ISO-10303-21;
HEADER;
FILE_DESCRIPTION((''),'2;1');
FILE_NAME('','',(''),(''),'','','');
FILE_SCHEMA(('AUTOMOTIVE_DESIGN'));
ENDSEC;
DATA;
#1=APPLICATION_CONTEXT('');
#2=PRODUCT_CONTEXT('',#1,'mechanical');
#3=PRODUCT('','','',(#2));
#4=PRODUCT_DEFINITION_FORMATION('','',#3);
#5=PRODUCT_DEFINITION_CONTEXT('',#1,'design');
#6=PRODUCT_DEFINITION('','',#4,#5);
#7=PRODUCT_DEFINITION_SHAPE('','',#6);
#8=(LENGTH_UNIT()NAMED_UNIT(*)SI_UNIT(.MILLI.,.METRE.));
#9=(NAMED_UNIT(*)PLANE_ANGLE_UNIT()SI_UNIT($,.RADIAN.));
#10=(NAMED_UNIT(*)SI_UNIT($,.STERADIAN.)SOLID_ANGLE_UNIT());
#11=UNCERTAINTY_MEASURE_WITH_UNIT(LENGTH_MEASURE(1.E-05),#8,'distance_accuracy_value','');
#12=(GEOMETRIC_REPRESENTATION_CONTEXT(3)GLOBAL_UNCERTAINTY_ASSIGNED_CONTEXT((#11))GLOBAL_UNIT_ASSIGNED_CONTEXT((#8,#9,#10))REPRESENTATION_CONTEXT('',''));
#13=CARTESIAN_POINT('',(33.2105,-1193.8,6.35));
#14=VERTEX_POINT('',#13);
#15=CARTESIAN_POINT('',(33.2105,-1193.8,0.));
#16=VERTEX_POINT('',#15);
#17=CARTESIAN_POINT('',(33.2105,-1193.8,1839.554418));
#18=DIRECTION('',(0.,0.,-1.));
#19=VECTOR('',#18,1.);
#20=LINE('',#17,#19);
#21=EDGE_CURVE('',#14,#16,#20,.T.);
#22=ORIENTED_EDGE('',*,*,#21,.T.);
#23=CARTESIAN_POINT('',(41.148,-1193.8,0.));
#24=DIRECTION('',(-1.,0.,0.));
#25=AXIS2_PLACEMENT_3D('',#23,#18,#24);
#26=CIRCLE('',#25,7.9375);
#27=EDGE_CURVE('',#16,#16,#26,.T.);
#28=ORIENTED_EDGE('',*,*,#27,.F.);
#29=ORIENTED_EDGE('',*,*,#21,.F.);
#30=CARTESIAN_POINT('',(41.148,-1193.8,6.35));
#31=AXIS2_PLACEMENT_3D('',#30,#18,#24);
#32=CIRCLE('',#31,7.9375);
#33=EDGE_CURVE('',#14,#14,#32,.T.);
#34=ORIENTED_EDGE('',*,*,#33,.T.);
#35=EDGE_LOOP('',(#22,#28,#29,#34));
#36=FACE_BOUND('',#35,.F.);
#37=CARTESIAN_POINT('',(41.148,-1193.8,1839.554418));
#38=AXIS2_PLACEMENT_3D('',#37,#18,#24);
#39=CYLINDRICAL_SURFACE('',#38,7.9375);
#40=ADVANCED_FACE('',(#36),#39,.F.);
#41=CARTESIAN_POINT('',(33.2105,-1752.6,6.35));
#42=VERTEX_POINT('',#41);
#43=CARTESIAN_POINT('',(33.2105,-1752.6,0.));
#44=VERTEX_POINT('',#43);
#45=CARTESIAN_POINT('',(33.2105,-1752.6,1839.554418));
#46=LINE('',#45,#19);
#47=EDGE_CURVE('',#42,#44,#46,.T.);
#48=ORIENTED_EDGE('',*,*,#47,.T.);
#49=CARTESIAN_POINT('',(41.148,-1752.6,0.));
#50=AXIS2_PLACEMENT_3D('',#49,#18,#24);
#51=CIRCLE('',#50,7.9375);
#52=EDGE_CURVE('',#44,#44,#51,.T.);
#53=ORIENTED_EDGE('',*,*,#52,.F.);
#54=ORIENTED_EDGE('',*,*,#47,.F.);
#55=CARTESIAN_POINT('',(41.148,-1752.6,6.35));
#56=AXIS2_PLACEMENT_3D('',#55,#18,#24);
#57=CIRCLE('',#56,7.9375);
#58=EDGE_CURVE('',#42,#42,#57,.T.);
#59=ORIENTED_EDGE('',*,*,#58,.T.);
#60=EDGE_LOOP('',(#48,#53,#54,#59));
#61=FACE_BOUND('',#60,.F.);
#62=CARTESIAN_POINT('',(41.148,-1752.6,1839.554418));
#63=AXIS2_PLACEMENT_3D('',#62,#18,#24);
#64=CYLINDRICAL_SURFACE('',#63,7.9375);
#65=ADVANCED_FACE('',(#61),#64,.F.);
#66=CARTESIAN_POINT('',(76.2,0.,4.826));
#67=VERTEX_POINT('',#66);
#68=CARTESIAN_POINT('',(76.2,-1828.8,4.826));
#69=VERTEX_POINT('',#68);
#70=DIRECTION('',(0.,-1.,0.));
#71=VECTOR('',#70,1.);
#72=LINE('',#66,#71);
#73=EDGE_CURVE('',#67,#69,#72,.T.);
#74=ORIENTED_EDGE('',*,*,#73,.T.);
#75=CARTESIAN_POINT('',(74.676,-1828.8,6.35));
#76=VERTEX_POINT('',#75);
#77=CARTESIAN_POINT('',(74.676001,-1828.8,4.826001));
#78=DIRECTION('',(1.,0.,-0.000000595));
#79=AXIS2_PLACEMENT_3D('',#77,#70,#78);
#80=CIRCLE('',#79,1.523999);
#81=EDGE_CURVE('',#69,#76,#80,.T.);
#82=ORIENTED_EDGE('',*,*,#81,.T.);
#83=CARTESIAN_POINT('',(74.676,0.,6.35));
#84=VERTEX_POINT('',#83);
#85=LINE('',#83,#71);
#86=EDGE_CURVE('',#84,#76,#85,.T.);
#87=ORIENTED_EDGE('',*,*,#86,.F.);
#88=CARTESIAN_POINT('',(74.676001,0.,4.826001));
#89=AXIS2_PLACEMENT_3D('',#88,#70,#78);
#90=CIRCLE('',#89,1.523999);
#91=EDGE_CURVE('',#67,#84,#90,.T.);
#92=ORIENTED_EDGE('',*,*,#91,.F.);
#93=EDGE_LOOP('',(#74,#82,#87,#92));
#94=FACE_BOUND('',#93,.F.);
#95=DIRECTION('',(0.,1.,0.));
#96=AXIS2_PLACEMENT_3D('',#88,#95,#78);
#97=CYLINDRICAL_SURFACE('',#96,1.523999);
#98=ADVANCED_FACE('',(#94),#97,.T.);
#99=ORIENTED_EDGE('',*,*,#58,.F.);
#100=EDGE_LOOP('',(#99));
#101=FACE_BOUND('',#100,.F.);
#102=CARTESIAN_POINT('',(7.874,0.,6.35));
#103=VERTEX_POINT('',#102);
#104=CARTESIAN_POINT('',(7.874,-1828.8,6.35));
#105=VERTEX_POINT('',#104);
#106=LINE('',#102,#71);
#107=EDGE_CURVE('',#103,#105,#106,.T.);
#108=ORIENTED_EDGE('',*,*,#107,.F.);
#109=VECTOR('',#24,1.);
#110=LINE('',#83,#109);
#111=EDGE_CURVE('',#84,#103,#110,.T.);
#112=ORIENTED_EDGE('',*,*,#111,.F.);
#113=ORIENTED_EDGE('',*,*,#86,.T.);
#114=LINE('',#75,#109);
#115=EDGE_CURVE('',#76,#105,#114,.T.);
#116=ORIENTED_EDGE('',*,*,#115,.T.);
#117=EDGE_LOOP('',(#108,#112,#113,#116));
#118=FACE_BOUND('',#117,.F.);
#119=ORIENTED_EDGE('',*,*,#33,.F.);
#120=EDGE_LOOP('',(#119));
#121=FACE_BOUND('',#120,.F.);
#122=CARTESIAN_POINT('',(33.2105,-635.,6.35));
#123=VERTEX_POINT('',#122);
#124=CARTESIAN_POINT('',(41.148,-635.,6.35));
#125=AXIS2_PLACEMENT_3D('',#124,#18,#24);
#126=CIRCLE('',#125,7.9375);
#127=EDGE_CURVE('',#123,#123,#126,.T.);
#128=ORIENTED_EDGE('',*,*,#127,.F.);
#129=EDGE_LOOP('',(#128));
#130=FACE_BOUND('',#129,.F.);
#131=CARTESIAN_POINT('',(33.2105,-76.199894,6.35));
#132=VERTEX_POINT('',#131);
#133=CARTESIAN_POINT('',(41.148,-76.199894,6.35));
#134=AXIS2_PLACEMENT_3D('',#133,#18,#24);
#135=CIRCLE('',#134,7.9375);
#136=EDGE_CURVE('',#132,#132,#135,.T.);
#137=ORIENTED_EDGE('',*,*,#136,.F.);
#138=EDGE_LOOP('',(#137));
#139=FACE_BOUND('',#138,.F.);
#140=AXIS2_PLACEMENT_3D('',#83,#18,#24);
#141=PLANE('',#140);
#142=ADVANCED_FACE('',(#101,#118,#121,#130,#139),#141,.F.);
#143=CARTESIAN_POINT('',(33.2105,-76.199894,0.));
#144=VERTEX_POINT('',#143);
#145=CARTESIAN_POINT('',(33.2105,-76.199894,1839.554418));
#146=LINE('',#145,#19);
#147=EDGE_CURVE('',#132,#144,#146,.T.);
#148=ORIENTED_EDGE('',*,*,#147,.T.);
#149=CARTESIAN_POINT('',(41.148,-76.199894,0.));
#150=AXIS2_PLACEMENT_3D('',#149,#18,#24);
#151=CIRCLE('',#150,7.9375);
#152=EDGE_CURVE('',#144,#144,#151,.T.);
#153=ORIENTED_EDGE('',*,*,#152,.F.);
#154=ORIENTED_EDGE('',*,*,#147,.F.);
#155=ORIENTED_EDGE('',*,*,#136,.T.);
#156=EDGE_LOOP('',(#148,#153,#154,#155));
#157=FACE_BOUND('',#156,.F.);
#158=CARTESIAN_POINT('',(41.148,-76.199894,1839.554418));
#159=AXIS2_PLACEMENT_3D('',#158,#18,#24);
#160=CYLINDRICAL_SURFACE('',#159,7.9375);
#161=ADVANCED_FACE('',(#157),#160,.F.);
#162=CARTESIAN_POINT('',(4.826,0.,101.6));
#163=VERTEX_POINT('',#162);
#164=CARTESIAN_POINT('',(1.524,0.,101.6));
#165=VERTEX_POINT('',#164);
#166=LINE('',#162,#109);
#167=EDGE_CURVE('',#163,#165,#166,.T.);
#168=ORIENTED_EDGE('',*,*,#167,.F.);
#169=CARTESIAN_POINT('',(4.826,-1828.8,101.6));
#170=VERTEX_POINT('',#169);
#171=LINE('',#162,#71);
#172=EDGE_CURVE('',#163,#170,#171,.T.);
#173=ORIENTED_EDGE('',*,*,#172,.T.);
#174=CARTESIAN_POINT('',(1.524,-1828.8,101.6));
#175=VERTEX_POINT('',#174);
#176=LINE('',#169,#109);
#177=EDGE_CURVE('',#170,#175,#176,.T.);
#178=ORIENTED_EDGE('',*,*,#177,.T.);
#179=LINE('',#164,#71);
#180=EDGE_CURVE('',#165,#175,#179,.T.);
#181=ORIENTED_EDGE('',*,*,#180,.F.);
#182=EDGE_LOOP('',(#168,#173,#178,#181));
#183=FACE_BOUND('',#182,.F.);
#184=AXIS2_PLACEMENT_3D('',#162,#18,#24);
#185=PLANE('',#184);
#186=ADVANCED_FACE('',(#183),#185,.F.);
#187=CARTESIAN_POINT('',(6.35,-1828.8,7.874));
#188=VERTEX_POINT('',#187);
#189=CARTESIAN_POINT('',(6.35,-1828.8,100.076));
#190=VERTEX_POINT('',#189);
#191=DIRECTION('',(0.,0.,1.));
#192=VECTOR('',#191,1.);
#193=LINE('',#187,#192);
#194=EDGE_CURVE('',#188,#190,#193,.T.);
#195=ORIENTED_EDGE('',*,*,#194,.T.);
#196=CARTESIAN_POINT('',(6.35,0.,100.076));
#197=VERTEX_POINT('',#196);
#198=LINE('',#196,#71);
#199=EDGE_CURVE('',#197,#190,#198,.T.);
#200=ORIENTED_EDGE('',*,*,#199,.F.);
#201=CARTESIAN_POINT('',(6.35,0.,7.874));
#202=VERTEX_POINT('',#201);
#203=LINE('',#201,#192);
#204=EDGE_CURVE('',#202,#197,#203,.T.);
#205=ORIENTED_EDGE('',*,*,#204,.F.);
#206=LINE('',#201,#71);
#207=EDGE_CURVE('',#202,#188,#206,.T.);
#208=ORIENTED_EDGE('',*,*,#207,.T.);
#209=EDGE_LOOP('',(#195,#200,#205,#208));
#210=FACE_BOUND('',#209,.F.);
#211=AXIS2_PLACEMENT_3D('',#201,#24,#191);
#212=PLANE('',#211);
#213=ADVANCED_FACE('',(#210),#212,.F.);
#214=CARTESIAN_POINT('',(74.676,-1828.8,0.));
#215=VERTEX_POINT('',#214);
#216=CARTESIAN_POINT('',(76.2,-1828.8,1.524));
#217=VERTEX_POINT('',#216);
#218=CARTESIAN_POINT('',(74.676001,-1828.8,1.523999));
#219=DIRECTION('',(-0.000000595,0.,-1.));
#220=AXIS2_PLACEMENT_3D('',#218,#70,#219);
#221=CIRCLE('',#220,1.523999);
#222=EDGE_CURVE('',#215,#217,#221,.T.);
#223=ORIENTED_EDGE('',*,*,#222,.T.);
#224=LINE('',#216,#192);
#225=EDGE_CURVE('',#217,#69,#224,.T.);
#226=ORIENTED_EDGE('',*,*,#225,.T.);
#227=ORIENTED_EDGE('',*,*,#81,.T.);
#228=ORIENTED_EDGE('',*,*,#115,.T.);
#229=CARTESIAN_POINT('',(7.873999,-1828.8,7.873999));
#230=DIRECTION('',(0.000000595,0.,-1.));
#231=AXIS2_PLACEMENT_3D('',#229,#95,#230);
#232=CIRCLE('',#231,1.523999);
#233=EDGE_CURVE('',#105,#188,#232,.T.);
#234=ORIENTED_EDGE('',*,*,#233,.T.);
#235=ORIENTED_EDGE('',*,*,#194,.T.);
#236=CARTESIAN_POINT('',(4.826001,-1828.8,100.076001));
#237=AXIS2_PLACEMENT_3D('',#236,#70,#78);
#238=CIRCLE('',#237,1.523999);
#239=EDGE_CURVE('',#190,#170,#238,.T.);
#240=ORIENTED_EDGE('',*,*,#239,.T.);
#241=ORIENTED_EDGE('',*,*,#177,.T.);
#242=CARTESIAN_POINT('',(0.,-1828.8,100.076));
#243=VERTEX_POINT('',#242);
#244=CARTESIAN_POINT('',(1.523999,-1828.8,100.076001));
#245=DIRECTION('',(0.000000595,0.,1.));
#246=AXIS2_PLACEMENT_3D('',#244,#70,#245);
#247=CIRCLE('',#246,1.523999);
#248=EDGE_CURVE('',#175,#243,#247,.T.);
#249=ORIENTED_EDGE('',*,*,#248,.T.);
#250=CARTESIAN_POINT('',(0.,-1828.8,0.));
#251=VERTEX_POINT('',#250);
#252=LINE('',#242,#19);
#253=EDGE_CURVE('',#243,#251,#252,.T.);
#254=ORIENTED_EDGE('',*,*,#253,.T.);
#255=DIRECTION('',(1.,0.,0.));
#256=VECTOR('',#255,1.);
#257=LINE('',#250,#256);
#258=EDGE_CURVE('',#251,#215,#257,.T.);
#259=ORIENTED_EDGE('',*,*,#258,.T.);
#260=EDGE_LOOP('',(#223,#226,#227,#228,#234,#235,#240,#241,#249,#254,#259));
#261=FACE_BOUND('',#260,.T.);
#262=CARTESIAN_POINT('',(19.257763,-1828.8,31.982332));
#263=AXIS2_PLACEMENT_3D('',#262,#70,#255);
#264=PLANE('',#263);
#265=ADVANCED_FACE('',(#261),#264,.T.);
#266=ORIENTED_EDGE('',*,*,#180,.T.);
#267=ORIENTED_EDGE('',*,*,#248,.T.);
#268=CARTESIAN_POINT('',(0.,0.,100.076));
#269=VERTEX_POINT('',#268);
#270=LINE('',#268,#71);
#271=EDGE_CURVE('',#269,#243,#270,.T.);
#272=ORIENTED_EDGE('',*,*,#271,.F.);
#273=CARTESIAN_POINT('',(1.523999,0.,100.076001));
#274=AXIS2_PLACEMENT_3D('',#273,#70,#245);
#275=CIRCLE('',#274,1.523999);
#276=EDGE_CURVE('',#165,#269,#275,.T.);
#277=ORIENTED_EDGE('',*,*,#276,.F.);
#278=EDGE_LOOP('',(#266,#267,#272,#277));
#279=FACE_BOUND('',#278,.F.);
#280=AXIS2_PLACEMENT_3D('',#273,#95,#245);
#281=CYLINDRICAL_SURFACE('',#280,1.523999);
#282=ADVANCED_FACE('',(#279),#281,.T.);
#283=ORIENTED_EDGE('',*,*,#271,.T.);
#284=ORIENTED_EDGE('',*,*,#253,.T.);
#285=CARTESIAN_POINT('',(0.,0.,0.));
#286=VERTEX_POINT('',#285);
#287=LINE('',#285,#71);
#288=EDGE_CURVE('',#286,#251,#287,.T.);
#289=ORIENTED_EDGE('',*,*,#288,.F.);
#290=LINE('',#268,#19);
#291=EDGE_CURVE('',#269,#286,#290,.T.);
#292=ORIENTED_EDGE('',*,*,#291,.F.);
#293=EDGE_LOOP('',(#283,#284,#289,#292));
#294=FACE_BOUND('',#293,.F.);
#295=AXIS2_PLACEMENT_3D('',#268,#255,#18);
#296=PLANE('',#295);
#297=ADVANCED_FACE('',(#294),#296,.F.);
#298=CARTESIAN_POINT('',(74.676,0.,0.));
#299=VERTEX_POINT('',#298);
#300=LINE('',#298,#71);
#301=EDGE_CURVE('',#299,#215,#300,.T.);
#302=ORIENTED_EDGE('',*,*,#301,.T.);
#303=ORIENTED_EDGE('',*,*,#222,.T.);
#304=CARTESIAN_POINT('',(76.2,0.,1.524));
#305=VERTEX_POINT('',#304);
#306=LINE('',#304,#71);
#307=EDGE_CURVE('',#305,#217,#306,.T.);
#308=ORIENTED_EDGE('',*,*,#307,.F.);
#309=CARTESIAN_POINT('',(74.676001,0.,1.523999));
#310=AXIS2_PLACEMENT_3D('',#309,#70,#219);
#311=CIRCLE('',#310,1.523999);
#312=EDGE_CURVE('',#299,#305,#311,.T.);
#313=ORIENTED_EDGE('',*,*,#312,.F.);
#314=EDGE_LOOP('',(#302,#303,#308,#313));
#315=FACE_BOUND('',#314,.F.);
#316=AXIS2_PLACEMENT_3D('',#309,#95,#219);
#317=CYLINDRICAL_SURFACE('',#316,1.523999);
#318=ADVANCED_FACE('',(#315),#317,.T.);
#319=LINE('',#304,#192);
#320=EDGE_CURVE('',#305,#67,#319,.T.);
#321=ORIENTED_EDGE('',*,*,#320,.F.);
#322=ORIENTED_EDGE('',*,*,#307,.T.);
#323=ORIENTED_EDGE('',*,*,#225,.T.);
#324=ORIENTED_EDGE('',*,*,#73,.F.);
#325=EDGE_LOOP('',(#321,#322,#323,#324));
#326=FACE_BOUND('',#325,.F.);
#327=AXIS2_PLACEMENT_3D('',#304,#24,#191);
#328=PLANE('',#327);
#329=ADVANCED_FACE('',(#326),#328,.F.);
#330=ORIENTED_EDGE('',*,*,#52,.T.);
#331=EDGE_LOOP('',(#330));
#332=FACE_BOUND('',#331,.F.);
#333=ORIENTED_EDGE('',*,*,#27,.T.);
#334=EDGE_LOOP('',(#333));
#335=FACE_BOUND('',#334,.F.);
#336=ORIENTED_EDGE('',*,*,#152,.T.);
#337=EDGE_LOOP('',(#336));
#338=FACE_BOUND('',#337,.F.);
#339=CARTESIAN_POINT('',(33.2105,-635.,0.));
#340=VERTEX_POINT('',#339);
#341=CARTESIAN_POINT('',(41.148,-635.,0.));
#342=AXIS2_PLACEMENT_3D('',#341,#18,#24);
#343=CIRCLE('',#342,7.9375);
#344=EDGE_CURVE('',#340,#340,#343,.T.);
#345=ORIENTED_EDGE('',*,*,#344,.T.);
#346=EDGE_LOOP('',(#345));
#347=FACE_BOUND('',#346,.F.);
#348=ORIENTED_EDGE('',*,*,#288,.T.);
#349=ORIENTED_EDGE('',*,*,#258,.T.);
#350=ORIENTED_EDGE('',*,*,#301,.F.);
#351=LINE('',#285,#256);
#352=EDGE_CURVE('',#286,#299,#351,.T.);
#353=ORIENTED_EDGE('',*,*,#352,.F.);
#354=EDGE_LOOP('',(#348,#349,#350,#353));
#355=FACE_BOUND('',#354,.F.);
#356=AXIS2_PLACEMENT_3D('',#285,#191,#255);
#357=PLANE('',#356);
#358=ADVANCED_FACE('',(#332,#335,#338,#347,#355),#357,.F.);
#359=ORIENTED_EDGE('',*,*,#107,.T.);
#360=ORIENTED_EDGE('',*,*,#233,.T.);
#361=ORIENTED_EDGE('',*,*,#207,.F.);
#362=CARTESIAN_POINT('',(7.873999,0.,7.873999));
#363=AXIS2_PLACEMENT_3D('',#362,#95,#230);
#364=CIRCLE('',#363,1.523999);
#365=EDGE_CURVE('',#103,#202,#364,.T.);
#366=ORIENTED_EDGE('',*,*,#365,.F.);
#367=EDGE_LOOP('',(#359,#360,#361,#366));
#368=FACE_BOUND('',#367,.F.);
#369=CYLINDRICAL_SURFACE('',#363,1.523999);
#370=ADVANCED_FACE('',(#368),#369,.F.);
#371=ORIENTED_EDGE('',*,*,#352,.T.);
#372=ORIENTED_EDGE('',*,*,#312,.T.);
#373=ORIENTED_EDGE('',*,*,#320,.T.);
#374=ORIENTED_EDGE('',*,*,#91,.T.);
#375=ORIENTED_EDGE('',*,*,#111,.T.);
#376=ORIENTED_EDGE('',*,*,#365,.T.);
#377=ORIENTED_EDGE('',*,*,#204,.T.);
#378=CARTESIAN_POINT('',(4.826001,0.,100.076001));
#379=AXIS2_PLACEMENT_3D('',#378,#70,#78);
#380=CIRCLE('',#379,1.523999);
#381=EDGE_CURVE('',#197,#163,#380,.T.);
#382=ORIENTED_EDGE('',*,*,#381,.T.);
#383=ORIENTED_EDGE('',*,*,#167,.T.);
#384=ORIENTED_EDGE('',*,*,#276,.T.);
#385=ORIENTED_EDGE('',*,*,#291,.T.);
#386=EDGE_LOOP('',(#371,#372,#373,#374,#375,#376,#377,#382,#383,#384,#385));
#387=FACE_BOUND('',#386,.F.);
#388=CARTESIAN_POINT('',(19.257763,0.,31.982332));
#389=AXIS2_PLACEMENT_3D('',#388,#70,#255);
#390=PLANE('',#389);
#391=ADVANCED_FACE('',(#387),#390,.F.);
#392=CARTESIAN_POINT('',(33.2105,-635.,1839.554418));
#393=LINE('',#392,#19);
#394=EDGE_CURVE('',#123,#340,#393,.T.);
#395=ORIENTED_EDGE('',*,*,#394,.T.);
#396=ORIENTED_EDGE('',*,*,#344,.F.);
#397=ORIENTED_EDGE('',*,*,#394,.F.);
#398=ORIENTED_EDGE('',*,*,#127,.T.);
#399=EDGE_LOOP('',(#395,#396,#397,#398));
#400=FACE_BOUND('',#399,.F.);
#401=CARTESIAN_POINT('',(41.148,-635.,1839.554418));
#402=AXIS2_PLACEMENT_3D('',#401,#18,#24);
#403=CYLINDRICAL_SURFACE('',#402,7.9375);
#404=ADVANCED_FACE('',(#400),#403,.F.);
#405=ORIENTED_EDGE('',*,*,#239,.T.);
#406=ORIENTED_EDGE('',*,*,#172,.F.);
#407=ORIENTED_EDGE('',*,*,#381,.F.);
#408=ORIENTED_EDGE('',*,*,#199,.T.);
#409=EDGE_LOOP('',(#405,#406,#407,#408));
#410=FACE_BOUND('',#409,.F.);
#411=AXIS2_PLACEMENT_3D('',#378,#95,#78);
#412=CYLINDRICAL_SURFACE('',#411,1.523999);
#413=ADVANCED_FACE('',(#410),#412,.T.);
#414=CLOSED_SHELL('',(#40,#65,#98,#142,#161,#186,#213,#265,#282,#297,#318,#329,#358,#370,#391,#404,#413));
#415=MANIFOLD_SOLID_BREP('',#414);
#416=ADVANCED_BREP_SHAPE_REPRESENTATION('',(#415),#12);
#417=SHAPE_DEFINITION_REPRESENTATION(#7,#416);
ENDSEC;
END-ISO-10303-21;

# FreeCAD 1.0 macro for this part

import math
import FreeCAD as App
import Part
import Sketcher

V = App.Vector
Q = App.Units.Quantity

doc = App.newDocument("Part")
params = doc.addObject("Spreadsheet::Sheet", "Params")
for row, (alias, value) in enumerate([
    ("sketch1_radius", "0.06 in"),
    ("sketch1_width", "2.63 in"),
    ("pad1_length", "72 in"),
    ("sketch2_diameter", "0.625 in"),
    ("hole_diameter", "0.625 in"),
], start=1):
    params.set(f"A{row}", alias)
    params.set(f"B{row}", "=" + value)
    params.setAlias(f"B{row}", alias)

body = doc.addObject("PartDesign::Body", "Body")

# Sketch on XZ plane
sketch1 = body.newObject("Sketcher::SketchObject", "Sketch")
sketch1.AttachmentSupport = (doc.getObject("XZ_Plane"), [""])
sketch1.MapMode = "FlatFace"
sketch1.addGeometry([
    Part.LineSegment(V(0, 100.1, 0), V(0, 0, 0)),  # 0
    Part.LineSegment(V(0, 0, 0), V(74.7, 0, 0)),  # 1
    Part.ArcOfCircle(Part.Circle(V(74.7, 1.5, 0), V(0, 0, 1), 1.5), math.radians(-90), math.radians(0)),  # 2
    Part.LineSegment(V(76.2, 1.5, 0), V(76.2, 4.8, 0)),  # 3
    Part.ArcOfCircle(Part.Circle(V(74.7, 4.8, 0), V(0, 0, 1), 1.5), math.radians(0), math.radians(90)),  # 4
    Part.LineSegment(V(74.7, 6.3, 0), V(7.9, 6.3, 0)),  # 5
    Part.ArcOfCircle(Part.Circle(V(7.9, 7.9, 0), V(0, 0, 1), 1.5), math.radians(180), math.radians(270)),  # 6
    Part.LineSegment(V(6.3, 7.9, 0), V(6.3, 100.1, 0)),  # 7
    Part.ArcOfCircle(Part.Circle(V(4.8, 100.1, 0), V(0, 0, 1), 1.5), math.radians(0), math.radians(90)),  # 8
    Part.LineSegment(V(4.8, 101.6, 0), V(1.5, 101.6, 0)),  # 9
    Part.ArcOfCircle(Part.Circle(V(1.5, 100.1, 0), V(0, 0, 1), 1.5), math.radians(90), math.radians(180)),  # 10
], False)
sketch1.addConstraint([
    Sketcher.Constraint("Coincident", 0, 2, 1, 1),
    Sketcher.Constraint("Tangent", 1, 2, 2, 1),
    Sketcher.Constraint("Tangent", 2, 2, 3, 1),
    Sketcher.Constraint("Tangent", 3, 2, 4, 1),
    Sketcher.Constraint("Tangent", 4, 2, 5, 1),
    Sketcher.Constraint("Tangent", 5, 2, 6, 2),
    Sketcher.Constraint("Tangent", 6, 1, 7, 1),
    Sketcher.Constraint("Tangent", 7, 2, 8, 1),
    Sketcher.Constraint("Tangent", 8, 2, 9, 1),
    Sketcher.Constraint("Tangent", 9, 2, 10, 1),
    Sketcher.Constraint("Tangent", 10, 2, 0, 1),
    Sketcher.Constraint("Vertical", 0),
    Sketcher.Constraint("Horizontal", 1),
    Sketcher.Constraint("Vertical", 3),
    Sketcher.Constraint("Horizontal", 5),
    Sketcher.Constraint("Vertical", 7),
    Sketcher.Constraint("Horizontal", 9),
    Sketcher.Constraint("Coincident", 0, 2, -1, 1),
    Sketcher.Constraint("Equal", 2, 4),
    Sketcher.Constraint("Equal", 4, 6),
    Sketcher.Constraint("Equal", 6, 8),
    Sketcher.Constraint("Equal", 8, 10),
    Sketcher.Constraint("Equal", 9, 3),
    Sketcher.Constraint("Radius", 2, Q("0.06 in")),
    Sketcher.Constraint("DistanceX", -1, 1, 2, 2, Q("3 in")),
    Sketcher.Constraint("DistanceY", -1, 1, 8, 2, Q("4 in")),
    Sketcher.Constraint("DistanceX", 5, 2, 5, 1, Q("2.63 in")),
])
sketch1.setExpression("Constraints[23]", "Params.sketch1_radius")
sketch1.setExpression("Constraints[26]", "Params.sketch1_width")
pad1 = body.newObject("PartDesign::Pad", "Pad")
pad1.Profile = sketch1
pad1.setExpression("Length", "Params.pad1_length")

# Sketch on XY plane
sketch2 = body.newObject("Sketcher::SketchObject", "Sketch001")
sketch2.AttachmentSupport = (doc.getObject("XY_Plane"), [""])
sketch2.MapMode = "FlatFace"
sketch2.AttachmentOffset = App.Placement(V(0, 0, 0.25 * 25.4), App.Rotation())
sketch2.addGeometry([
    Part.Circle(V(41, -1753, 0), V(0, 0, 1), 8),
    Part.Circle(V(41, -1194, 0), V(0, 0, 1), 8),
    Part.Circle(V(41, -635, 0), V(0, 0, 1), 8),
    Part.Circle(V(41, -76, 0), V(0, 0, 1), 8),
], False)
sketch2.addConstraint([
    Sketcher.Constraint("Equal", 0, 1),
    Sketcher.Constraint("Equal", 1, 2),
    Sketcher.Constraint("Equal", 2, 3),
    Sketcher.Constraint("Vertical", 0, 3, 1, 3),
    Sketcher.Constraint("Vertical", 1, 3, 2, 3),
    Sketcher.Constraint("Vertical", 2, 3, 3, 3),
    Sketcher.Constraint("Diameter", 0, Q("0.625 in")),
    Sketcher.Constraint("DistanceY", 0, 3, -1, 1, Q("69 in")),
    Sketcher.Constraint("DistanceY", 1, 3, -1, 1, Q("47 in")),
    Sketcher.Constraint("DistanceY", 2, 3, -1, 1, Q("25 in")),
    Sketcher.Constraint("DistanceX", -1, 1, 0, 3, Q("1.62 in")),
    Sketcher.Constraint("DistanceY", 3, 3, -1, 1, Q("76.199894 mm")),
])
sketch2.setExpression("Constraints[6]", "Params.sketch2_diameter")
doc.recompute()
hole = body.newObject("PartDesign::Hole", "Hole")
hole.Profile = sketch2
hole.ThreadType = "None"
hole.setExpression("Diameter", "Params.hole_diameter")
hole.DepthType = "ThroughAll"

doc.recompute()
